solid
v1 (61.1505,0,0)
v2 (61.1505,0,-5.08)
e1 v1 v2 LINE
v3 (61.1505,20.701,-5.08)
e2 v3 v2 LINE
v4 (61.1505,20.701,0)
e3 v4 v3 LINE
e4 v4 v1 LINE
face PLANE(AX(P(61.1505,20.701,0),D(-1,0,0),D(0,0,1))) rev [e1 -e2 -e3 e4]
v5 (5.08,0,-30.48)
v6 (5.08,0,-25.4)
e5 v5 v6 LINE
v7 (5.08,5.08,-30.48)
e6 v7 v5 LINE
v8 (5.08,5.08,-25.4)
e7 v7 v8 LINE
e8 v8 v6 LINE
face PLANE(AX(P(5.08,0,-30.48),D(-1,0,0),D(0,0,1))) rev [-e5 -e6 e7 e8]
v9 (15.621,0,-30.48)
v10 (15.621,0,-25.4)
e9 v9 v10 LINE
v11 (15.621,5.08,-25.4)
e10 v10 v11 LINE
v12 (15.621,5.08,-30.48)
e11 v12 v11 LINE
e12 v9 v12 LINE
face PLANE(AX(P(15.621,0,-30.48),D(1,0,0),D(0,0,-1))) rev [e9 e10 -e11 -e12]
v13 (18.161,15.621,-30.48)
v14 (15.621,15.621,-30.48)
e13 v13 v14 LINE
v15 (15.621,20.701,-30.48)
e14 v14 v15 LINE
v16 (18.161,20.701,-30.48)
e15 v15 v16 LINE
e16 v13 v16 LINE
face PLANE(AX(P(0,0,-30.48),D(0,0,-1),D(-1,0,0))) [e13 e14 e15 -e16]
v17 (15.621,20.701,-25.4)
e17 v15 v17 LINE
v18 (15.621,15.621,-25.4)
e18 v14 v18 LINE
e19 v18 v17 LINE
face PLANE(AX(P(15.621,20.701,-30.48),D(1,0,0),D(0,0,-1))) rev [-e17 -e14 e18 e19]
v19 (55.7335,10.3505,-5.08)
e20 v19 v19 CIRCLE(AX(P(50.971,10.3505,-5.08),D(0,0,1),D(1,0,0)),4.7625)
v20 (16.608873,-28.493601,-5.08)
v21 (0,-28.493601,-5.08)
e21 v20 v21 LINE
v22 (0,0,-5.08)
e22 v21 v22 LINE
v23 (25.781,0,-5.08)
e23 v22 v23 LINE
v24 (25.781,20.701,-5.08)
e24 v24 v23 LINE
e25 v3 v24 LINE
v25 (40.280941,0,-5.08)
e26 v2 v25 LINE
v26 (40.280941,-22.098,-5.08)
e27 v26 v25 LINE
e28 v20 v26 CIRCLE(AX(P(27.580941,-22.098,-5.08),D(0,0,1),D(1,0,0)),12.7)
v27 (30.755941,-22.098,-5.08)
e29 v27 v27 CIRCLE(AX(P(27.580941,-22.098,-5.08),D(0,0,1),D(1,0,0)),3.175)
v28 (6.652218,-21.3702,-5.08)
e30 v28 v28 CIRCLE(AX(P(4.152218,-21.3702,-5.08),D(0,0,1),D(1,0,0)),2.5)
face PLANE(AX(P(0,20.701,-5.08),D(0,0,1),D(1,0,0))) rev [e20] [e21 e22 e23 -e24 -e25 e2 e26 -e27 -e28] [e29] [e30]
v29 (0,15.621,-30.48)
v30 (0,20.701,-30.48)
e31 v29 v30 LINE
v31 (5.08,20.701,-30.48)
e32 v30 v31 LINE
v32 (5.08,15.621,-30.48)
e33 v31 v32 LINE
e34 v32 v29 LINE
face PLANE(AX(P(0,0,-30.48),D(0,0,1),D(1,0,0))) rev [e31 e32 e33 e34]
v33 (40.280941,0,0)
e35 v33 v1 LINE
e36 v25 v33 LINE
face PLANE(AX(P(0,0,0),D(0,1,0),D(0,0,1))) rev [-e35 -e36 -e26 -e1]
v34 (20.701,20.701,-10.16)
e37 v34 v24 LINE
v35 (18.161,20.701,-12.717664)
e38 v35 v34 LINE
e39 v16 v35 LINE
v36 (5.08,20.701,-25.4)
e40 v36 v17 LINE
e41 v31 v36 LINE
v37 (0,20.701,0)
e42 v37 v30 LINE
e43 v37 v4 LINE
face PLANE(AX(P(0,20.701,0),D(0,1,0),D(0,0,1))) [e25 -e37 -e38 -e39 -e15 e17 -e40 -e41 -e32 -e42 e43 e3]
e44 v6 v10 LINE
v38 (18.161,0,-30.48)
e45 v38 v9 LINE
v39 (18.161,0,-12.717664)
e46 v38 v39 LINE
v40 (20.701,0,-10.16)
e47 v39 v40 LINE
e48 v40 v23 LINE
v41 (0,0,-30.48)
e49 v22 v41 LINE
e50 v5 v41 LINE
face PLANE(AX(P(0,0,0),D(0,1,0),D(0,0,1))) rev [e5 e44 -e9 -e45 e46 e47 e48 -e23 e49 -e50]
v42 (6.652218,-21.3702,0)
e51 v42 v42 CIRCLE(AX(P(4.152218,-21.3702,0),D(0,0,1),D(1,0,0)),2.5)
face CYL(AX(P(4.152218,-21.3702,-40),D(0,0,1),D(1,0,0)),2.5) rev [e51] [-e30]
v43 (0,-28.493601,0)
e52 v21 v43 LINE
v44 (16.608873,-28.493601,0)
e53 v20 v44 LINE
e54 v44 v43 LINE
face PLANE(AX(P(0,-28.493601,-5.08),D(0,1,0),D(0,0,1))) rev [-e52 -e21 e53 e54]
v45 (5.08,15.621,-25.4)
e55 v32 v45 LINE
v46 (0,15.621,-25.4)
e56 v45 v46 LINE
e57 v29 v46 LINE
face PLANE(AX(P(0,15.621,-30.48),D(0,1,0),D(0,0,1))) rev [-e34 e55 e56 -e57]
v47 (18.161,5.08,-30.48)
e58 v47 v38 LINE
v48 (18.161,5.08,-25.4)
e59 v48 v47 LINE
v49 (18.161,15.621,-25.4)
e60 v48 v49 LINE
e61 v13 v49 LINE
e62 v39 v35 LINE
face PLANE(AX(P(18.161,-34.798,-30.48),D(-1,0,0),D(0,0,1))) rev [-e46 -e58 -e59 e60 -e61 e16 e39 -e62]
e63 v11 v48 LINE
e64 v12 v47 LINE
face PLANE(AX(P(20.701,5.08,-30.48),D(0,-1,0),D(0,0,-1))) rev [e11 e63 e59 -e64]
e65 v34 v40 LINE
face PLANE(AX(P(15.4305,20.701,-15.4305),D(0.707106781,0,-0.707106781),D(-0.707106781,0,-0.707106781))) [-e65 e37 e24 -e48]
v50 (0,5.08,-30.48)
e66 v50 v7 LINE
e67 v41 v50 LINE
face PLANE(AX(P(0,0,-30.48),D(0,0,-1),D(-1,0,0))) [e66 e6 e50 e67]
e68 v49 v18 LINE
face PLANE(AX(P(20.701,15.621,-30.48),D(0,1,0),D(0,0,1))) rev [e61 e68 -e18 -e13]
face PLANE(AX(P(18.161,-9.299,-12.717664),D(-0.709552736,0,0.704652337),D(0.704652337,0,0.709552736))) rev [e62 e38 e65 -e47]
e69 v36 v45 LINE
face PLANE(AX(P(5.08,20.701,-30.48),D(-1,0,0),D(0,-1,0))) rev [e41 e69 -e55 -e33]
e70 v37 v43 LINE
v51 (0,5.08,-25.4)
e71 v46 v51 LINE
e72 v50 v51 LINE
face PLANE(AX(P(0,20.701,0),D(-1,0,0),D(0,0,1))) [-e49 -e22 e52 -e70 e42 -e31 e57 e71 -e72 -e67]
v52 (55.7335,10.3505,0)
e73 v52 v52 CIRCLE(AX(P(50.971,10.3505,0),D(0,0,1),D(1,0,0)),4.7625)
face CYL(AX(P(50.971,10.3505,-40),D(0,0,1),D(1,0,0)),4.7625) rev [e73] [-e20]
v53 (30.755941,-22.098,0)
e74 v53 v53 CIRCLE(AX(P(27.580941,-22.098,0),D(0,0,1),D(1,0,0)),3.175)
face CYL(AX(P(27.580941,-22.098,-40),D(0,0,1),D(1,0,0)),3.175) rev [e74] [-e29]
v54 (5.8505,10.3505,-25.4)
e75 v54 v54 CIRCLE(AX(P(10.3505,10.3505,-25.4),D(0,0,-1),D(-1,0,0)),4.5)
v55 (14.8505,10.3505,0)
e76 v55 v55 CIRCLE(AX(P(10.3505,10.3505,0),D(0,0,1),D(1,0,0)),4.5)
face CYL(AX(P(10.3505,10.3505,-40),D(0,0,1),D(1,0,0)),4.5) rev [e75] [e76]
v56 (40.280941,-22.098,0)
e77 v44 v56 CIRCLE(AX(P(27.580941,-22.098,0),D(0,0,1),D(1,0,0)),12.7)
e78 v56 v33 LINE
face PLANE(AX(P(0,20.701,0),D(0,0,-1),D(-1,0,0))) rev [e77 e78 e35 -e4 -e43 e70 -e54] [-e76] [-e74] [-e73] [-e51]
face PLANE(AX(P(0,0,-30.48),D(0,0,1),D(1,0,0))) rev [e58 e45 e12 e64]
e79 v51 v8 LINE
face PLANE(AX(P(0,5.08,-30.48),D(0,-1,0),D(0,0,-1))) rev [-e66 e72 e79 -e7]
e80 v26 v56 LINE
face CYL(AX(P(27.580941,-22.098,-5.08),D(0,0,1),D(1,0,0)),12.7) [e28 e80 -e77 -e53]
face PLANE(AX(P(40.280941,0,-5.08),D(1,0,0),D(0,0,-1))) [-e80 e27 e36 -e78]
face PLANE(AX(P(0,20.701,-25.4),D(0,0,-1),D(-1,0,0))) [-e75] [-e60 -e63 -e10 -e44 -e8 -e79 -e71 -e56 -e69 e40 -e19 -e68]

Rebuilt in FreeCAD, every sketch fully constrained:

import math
import FreeCAD as App
import Part
import Sketcher
from FreeCAD import Vector
Q = App.Units.Quantity

doc = App.newDocument("Part")
body = doc.addObject("PartDesign::Body", "Body")

# Sketch on XZ plane
sketch1 = body.newObject("Sketcher::SketchObject", "Sketch")
sketch1.AttachmentSupport = (doc.getObject("XZ_Plane"), [""])
sketch1.MapMode = "FlatFace"
sketch1.addGeometry(Part.LineSegment(Vector(87, 0, 0), Vector(87, -25, 0)), False)
sketch1.addGeometry(Part.LineSegment(Vector(87, -25, 0), Vector(81, -25, 0)), False)
sketch1.addGeometry(Part.LineSegment(Vector(81, -25, 0), Vector(81, -10, 0)), False)
sketch1.addGeometry(Part.LineSegment(Vector(81, -10, 0), Vector(76, -5, 0)), False)
sketch1.addGeometry(Part.LineSegment(Vector(76, -5, 0), Vector(26, -5, 0)), False)
sketch1.addGeometry(Part.LineSegment(Vector(26, -5, 0), Vector(21, -10, 0)), False)
sketch1.addGeometry(Part.LineSegment(Vector(21, -10, 0), Vector(21, -25, 0)), False)
sketch1.addGeometry(Part.LineSegment(Vector(21, -25, 0), Vector(0, -25, 0)), False)
sketch1.addGeometry(Part.LineSegment(Vector(0, -25, 0), Vector(0, 0, 0)), False)
sketch1.addGeometry(Part.LineSegment(Vector(0, 0, 0), Vector(87, 0, 0)), False)
sketch1.addConstraint(Sketcher.Constraint("Coincident", 0, 2, 1, 1))
sketch1.addConstraint(Sketcher.Constraint("Coincident", 1, 2, 2, 1))
sketch1.addConstraint(Sketcher.Constraint("Coincident", 2, 2, 3, 1))
sketch1.addConstraint(Sketcher.Constraint("Coincident", 3, 2, 4, 1))
sketch1.addConstraint(Sketcher.Constraint("Coincident", 4, 2, 5, 1))
sketch1.addConstraint(Sketcher.Constraint("Coincident", 5, 2, 6, 1))
sketch1.addConstraint(Sketcher.Constraint("Coincident", 6, 2, 7, 1))
sketch1.addConstraint(Sketcher.Constraint("Coincident", 7, 2, 8, 1))
sketch1.addConstraint(Sketcher.Constraint("Coincident", 8, 2, 9, 1))
sketch1.addConstraint(Sketcher.Constraint("Coincident", 9, 2, 0, 1))
sketch1.addConstraint(Sketcher.Constraint("Vertical", 0))
sketch1.addConstraint(Sketcher.Constraint("Horizontal", 1))
sketch1.addConstraint(Sketcher.Constraint("Vertical", 2))
sketch1.addConstraint(Sketcher.Constraint("Horizontal", 4))
sketch1.addConstraint(Sketcher.Constraint("Vertical", 6))
sketch1.addConstraint(Sketcher.Constraint("Horizontal", 7))
sketch1.addConstraint(Sketcher.Constraint("Vertical", 8))
sketch1.addConstraint(Sketcher.Constraint("Horizontal", 9))
sketch1.addConstraint(Sketcher.Constraint("Coincident", 8, 2, -1, 1))
sketch1.addConstraint(Sketcher.Constraint("Perpendicular", 3, 5))
sketch1.addConstraint(Sketcher.Constraint("Horizontal", 2, 2, 5, 2))
sketch1.addConstraint(Sketcher.Constraint("Horizontal", 1, 2, 6, 2))
sketch1.addConstraint(Sketcher.Constraint("Equal", 3, 5))
sketch1.addConstraint(Sketcher.Constraint("DistanceY", 0, 2, 0, 1, Q("1 in")))
sketch1.addConstraint(Sketcher.Constraint("DistanceX", 1, 2, 1, 1, Q("0.2 in")))
sketch1.addConstraint(Sketcher.Constraint("DistanceY", 2, 1, 2, 2, Q("0.6 in")))
sketch1.addConstraint(Sketcher.Constraint("DistanceY", 3, 2, -1, 1, Q("0.2 in")))
sketch1.addConstraint(Sketcher.Constraint("DistanceX", 7, 2, 7, 1, Q("0.815 in")))
sketch1.addConstraint(Sketcher.Constraint("DistanceX", 4, 2, 4, 1, Q("1.9925 in")))
pad1 = body.newObject("PartDesign::Pad", "Pad")
pad1.Profile = sketch1
pad1.Length = Q("0.815 in")
pad1.Reversed = True

# Sketch on XY plane
sketch2 = body.newObject("Sketcher::SketchObject", "Sketch001")
sketch2.AttachmentSupport = (doc.getObject("XY_Plane"), [""])
sketch2.MapMode = "FlatFace"
sketch2.AttachmentOffset = App.Placement(Vector(0, 0, -1 * 25.4), App.Rotation())
sketch2.addGeometry(Part.Circle(Vector(10.4, 10.4, 0), Vector(0, 0, 1), 1), False)
sketch2.addConstraint(Sketcher.Constraint("Diameter", 0, 2.0))
sketch2.addConstraint(Sketcher.Constraint("DistanceX", -1, 1, 0, 3, Q("0.4075 in")))
sketch2.addConstraint(Sketcher.Constraint("DistanceY", -1, 1, 0, 3, Q("0.4075 in")))
pocket1 = body.newObject("PartDesign::Pocket", "Pocket")
pocket1.Profile = sketch2
pocket1.Type = "ThroughAll"
pocket1.Reversed = True

# Sketch on XY plane
sketch3 = body.newObject("Sketcher::SketchObject", "Sketch002")
sketch3.AttachmentSupport = (doc.getObject("XY_Plane"), [""])
sketch3.MapMode = "FlatFace"
sketch3.addGeometry(Part.Circle(Vector(51, 10.4, 0), Vector(0, 0, 1), 1), False)
sketch3.addConstraint(Sketcher.Constraint("Diameter", 0, 2.0))
sketch3.addConstraint(Sketcher.Constraint("DistanceY", -1, 1, 0, 3, Q("0.4075 in")))
sketch3.addConstraint(Sketcher.Constraint("DistanceX", -1, 1, 0, 3, 50.971))
pocket2 = body.newObject("PartDesign::Pocket", "Pocket001")
pocket2.Profile = sketch3
pocket2.Length = Q("0.5 in")

# Sketch on XY plane
sketch4 = body.newObject("Sketcher::SketchObject", "Sketch003")
sketch4.AttachmentSupport = (doc.getObject("XY_Plane"), [""])
sketch4.MapMode = "FlatFace"
sketch4.addGeometry(Part.LineSegment(Vector(40.3, 0, 0), Vector(0, 0, 0)), False)
sketch4.addGeometry(Part.LineSegment(Vector(0, 0, 0), Vector(16.6, -28.5, 0)), False)
sketch4.addGeometry(Part.ArcOfCircle(Part.Circle(Vector(27.6, -22.1, 0), Vector(0, 0, 1), 12.7), math.radians(-150), math.radians(0)), False)
sketch4.addGeometry(Part.LineSegment(Vector(40.3, -22.1, 0), Vector(40.3, 0, 0)), False)
sketch4.addGeometry(Part.Circle(Vector(20.1, -22.1, 0), Vector(0, 0, 1), 1), False)
sketch4.addGeometry(Part.ArcOfCircle(Part.Circle(Vector(27.6, -22.1, 0), Vector(0, 0, 1), 1), math.radians(180), math.radians(360)), False)
sketch4.addGeometry(Part.ArcOfCircle(Part.Circle(Vector(27.6, -22.1, 0), Vector(0, 0, 1), 1), math.radians(90), math.radians(180)), False)
sketch4.addGeometry(Part.ArcOfCircle(Part.Circle(Vector(27.6, -22.1, 0), Vector(0, 0, 1), 1), math.radians(0), math.radians(90)), False)
sketch4.addGeometry(Part.Circle(Vector(35, -22.1, 0), Vector(0, 0, 1), 1), False)
sketch4.addConstraint(Sketcher.Constraint("Coincident", 0, 2, 1, 1))
sketch4.addConstraint(Sketcher.Constraint("Tangent", 1, 2, 2, 1))
sketch4.addConstraint(Sketcher.Constraint("Tangent", 2, 2, 3, 1))
sketch4.addConstraint(Sketcher.Constraint("Coincident", 3, 2, 0, 1))
sketch4.addConstraint(Sketcher.Constraint("Tangent", 5, 1, 6, 2))
sketch4.addConstraint(Sketcher.Constraint("Tangent", 6, 1, 7, 2))
sketch4.addConstraint(Sketcher.Constraint("Tangent", 7, 1, 5, 2))
sketch4.addConstraint(Sketcher.Constraint("Horizontal", 0))
sketch4.addConstraint(Sketcher.Constraint("Vertical", 3))
sketch4.addConstraint(Sketcher.Constraint("Coincident", 0, 2, -1, 1))
sketch4.addConstraint(Sketcher.Constraint("Coincident", 5, 3, 2, 3))
sketch4.addConstraint(Sketcher.Constraint("Equal", 4, 5))
sketch4.addConstraint(Sketcher.Constraint("Equal", 7, 8))
sketch4.addConstraint(Sketcher.Constraint("Horizontal", 2, 3, 4, 3))
sketch4.addConstraint(Sketcher.Constraint("Horizontal", 7, 3, 8, 3))
sketch4.addConstraint(Sketcher.Constraint("Horizontal", 2, 2, 5, 1))
sketch4.addConstraint(Sketcher.Constraint("Horizontal", 5, 1, 7, 1))
sketch4.addConstraint(Sketcher.Constraint("Vertical", 7, 3, 6, 1))
sketch4.addConstraint(Sketcher.Constraint("Radius", 2, Q("0.5 in")))
sketch4.addConstraint(Sketcher.Constraint("DistanceY", 3, 1, 3, 2, Q("0.87 in")))
sketch4.addConstraint(Sketcher.Constraint("Diameter", 4, 2.0))
sketch4.addConstraint(Sketcher.Constraint("DistanceX", 4, 3, 2, 3, Q("0.293 in")))
sketch4.addConstraint(Sketcher.Constraint("DistanceX", 6, 3, 8, 3, Q("0.293 in")))
sketch4.addConstraint(Sketcher.Constraint("DistanceX", 0, 2, 0, 1, 40.280941))
pad2 = body.newObject("PartDesign::Pad", "Pad001")
pad2.Profile = sketch4
pad2.Length = Q("0.2 in")
pad2.Reversed = True

# Sketch on XY plane
sketch5 = body.newObject("Sketcher::SketchObject", "Sketch004")
sketch5.AttachmentSupport = (doc.getObject("XY_Plane"), [""])
sketch5.MapMode = "FlatFace"
sketch5.AttachmentOffset = App.Placement(Vector(0, 0, -1 * 25.4), App.Rotation())
sketch5.addGeometry(Part.LineSegment(Vector(5, 5, 0), Vector(5, 0, 0)), False)
sketch5.addGeometry(Part.LineSegment(Vector(5, 0, 0), Vector(0, 0, 0)), False)
sketch5.addGeometry(Part.LineSegment(Vector(0, 0, 0), Vector(0, 5, 0)), False)
sketch5.addGeometry(Part.LineSegment(Vector(0, 5, 0), Vector(5, 5, 0)), False)
sketch5.addGeometry(Part.LineSegment(Vector(5, 21, 0), Vector(5, 16, 0)), False)
sketch5.addGeometry(Part.LineSegment(Vector(5, 16, 0), Vector(0, 16, 0)), False)
sketch5.addGeometry(Part.LineSegment(Vector(0, 16, 0), Vector(0, 21, 0)), False)
sketch5.addGeometry(Part.LineSegment(Vector(0, 21, 0), Vector(5, 21, 0)), False)
sketch5.addGeometry(Part.LineSegment(Vector(21, 21, 0), Vector(21, 16, 0)), False)
sketch5.addGeometry(Part.LineSegment(Vector(21, 16, 0), Vector(16, 16, 0)), False)
sketch5.addGeometry(Part.LineSegment(Vector(16, 16, 0), Vector(16, 21, 0)), False)
sketch5.addGeometry(Part.LineSegment(Vector(16, 21, 0), Vector(21, 21, 0)), False)
sketch5.addGeometry(Part.LineSegment(Vector(21, 5, 0), Vector(21, 0, 0)), False)
sketch5.addGeometry(Part.LineSegment(Vector(21, 0, 0), Vector(16, 0, 0)), False)
sketch5.addGeometry(Part.LineSegment(Vector(16, 0, 0), Vector(16, 5, 0)), False)
sketch5.addGeometry(Part.LineSegment(Vector(16, 5, 0), Vector(21, 5, 0)), False)
sketch5.addConstraint(Sketcher.Constraint("Coincident", 0, 2, 1, 1))
sketch5.addConstraint(Sketcher.Constraint("Coincident", 1, 2, 2, 1))
sketch5.addConstraint(Sketcher.Constraint("Coincident", 2, 2, 3, 1))
sketch5.addConstraint(Sketcher.Constraint("Coincident", 3, 2, 0, 1))
sketch5.addConstraint(Sketcher.Constraint("Coincident", 4, 2, 5, 1))
sketch5.addConstraint(Sketcher.Constraint("Coincident", 5, 2, 6, 1))
sketch5.addConstraint(Sketcher.Constraint("Coincident", 6, 2, 7, 1))
sketch5.addConstraint(Sketcher.Constraint("Coincident", 7, 2, 4, 1))
sketch5.addConstraint(Sketcher.Constraint("Coincident", 8, 2, 9, 1))
sketch5.addConstraint(Sketcher.Constraint("Coincident", 9, 2, 10, 1))
sketch5.addConstraint(Sketcher.Constraint("Coincident", 10, 2, 11, 1))
sketch5.addConstraint(Sketcher.Constraint("Coincident", 11, 2, 8, 1))
sketch5.addConstraint(Sketcher.Constraint("Coincident", 12, 2, 13, 1))
sketch5.addConstraint(Sketcher.Constraint("Coincident", 13, 2, 14, 1))
sketch5.addConstraint(Sketcher.Constraint("Coincident", 14, 2, 15, 1))
sketch5.addConstraint(Sketcher.Constraint("Coincident", 15, 2, 12, 1))
sketch5.addConstraint(Sketcher.Constraint("Vertical", 0))
sketch5.addConstraint(Sketcher.Constraint("Horizontal", 1))
sketch5.addConstraint(Sketcher.Constraint("Vertical", 2))
sketch5.addConstraint(Sketcher.Constraint("Horizontal", 3))
sketch5.addConstraint(Sketcher.Constraint("Vertical", 4))
sketch5.addConstraint(Sketcher.Constraint("Horizontal", 5))
sketch5.addConstraint(Sketcher.Constraint("Vertical", 6))
sketch5.addConstraint(Sketcher.Constraint("Horizontal", 7))
sketch5.addConstraint(Sketcher.Constraint("Vertical", 8))
sketch5.addConstraint(Sketcher.Constraint("Horizontal", 9))
sketch5.addConstraint(Sketcher.Constraint("Vertical", 10))
sketch5.addConstraint(Sketcher.Constraint("Horizontal", 11))
sketch5.addConstraint(Sketcher.Constraint("Vertical", 12))
sketch5.addConstraint(Sketcher.Constraint("Horizontal", 13))
sketch5.addConstraint(Sketcher.Constraint("Vertical", 14))
sketch5.addConstraint(Sketcher.Constraint("Horizontal", 15))
sketch5.addConstraint(Sketcher.Constraint("Coincident", 1, 2, -1, 1))
sketch5.addConstraint(Sketcher.Constraint("PointOnObject", 5, 2, -2))
sketch5.addConstraint(Sketcher.Constraint("PointOnObject", 12, 2, -1))
sketch5.addConstraint(Sketcher.Constraint("Horizontal", 5, 2, 8, 2))
sketch5.addConstraint(Sketcher.Constraint("Horizontal", 7, 2, 10, 2))
sketch5.addConstraint(Sketcher.Constraint("Horizontal", 3, 2, 14, 2))
sketch5.addConstraint(Sketcher.Constraint("Vertical", 3, 2, 4, 2))
sketch5.addConstraint(Sketcher.Constraint("Vertical", 11, 2, 12, 2))
sketch5.addConstraint(Sketcher.Constraint("Vertical", 10, 2, 13, 2))
sketch5.addConstraint(Sketcher.Constraint("Equal", 7, 9))
sketch5.addConstraint(Sketcher.Constraint("Equal", 15, 0))
sketch5.addConstraint(Sketcher.Constraint("Equal", 2, 4))
sketch5.addConstraint(Sketcher.Constraint("DistanceX", 1, 2, 1, 1, Q("0.2 in")))
sketch5.addConstraint(Sketcher.Constraint("DistanceY", -1, 1, 4, 2, Q("0.615 in")))
sketch5.addConstraint(Sketcher.Constraint("DistanceX", -1, 1, 8, 2, Q("0.815 in")))
pad3 = body.newObject("PartDesign::Pad", "Pad002")
pad3.Profile = sketch5
pad3.Length = Q("0.2 in")
pad3.Reversed = True

# Sketch on XY plane
sketch6 = body.newObject("Sketcher::SketchObject", "Sketch005")
sketch6.AttachmentSupport = (doc.getObject("XY_Plane"), [""])
sketch6.MapMode = "FlatFace"
sketch6.AttachmentOffset = App.Placement(Vector(0, 0, -1 * 25.4), App.Rotation())
sketch6.addGeometry(Part.LineSegment(Vector(87, 21, 0), Vector(87, 16, 0)), False)
sketch6.addGeometry(Part.LineSegment(Vector(87, 16, 0), Vector(81, 16, 0)), False)
sketch6.addGeometry(Part.LineSegment(Vector(81, 16, 0), Vector(81, 21, 0)), False)
sketch6.addGeometry(Part.LineSegment(Vector(81, 21, 0), Vector(87, 21, 0)), False)
sketch6.addGeometry(Part.LineSegment(Vector(87, 5, 0), Vector(87, 0, 0)), False)
sketch6.addGeometry(Part.LineSegment(Vector(87, 0, 0), Vector(81, 0, 0)), False)
sketch6.addGeometry(Part.LineSegment(Vector(81, 0, 0), Vector(81, 5, 0)), False)
sketch6.addGeometry(Part.LineSegment(Vector(81, 5, 0), Vector(87, 5, 0)), False)
sketch6.addConstraint(Sketcher.Constraint("Coincident", 0, 2, 1, 1))
sketch6.addConstraint(Sketcher.Constraint("Coincident", 1, 2, 2, 1))
sketch6.addConstraint(Sketcher.Constraint("Coincident", 2, 2, 3, 1))
sketch6.addConstraint(Sketcher.Constraint("Coincident", 3, 2, 0, 1))
sketch6.addConstraint(Sketcher.Constraint("Coincident", 4, 2, 5, 1))
sketch6.addConstraint(Sketcher.Constraint("Coincident", 5, 2, 6, 1))
sketch6.addConstraint(Sketcher.Constraint("Coincident", 6, 2, 7, 1))
sketch6.addConstraint(Sketcher.Constraint("Coincident", 7, 2, 4, 1))
sketch6.addConstraint(Sketcher.Constraint("Vertical", 0))
sketch6.addConstraint(Sketcher.Constraint("Horizontal", 1))
sketch6.addConstraint(Sketcher.Constraint("Vertical", 2))
sketch6.addConstraint(Sketcher.Constraint("Horizontal", 3))
sketch6.addConstraint(Sketcher.Constraint("Vertical", 4))
sketch6.addConstraint(Sketcher.Constraint("Horizontal", 5))
sketch6.addConstraint(Sketcher.Constraint("Vertical", 6))
sketch6.addConstraint(Sketcher.Constraint("Horizontal", 7))
sketch6.addConstraint(Sketcher.Constraint("PointOnObject", 4, 2, -1))
sketch6.addConstraint(Sketcher.Constraint("Vertical", 3, 2, 4, 2))
sketch6.addConstraint(Sketcher.Constraint("Vertical", 2, 2, 5, 2))
sketch6.addConstraint(Sketcher.Constraint("Equal", 7, 0))
sketch6.addConstraint(Sketcher.Constraint("Equal", 2, 4))
sketch6.addConstraint(Sketcher.Constraint("DistanceX", 1, 2, 1, 1, Q("0.2 in")))
sketch6.addConstraint(Sketcher.Constraint("DistanceY", -1, 1, 0, 2, Q("0.615 in")))
sketch6.addConstraint(Sketcher.Constraint("DistanceX", -1, 1, 0, 2, Q("3.4075 in")))
pad4 = body.newObject("PartDesign::Pad", "Pad003")
pad4.Profile = sketch6
pad4.Length = Q("0.2 in")
pad4.Reversed = True

# Sketch on XZ plane
sketch7 = body.newObject("Sketcher::SketchObject", "Sketch006")
sketch7.AttachmentSupport = (doc.getObject("XZ_Plane"), [""])
sketch7.MapMode = "FlatFace"
sketch7.AttachmentOffset = App.Placement(Vector(0, 0, -0.815 * 25.4), App.Rotation())
sketch7.addGeometry(Part.LineSegment(Vector(81.5, -30.5, 0), Vector(81.5, -15.5, 0)), False)
sketch7.addGeometry(Part.LineSegment(Vector(81.5, -15.5, 0), Vector(84, -15.5, 0)), False)
sketch7.addGeometry(Part.LineSegment(Vector(84, -15.5, 0), Vector(84, -30.5, 0)), False)
sketch7.addGeometry(Part.LineSegment(Vector(84, -30.5, 0), Vector(81.5, -30.5, 0)), False)
sketch7.addGeometry(Part.LineSegment(Vector(18.2, -30.5, 0), Vector(18.2, -15.5, 0)), False)
sketch7.addGeometry(Part.LineSegment(Vector(18.2, -15.5, 0), Vector(20.7, -15.5, 0)), False)
sketch7.addGeometry(Part.LineSegment(Vector(20.7, -15.5, 0), Vector(20.7, -30.5, 0)), False)
sketch7.addGeometry(Part.LineSegment(Vector(20.7, -30.5, 0), Vector(18.2, -30.5, 0)), False)
sketch7.addConstraint(Sketcher.Constraint("Coincident", 0, 2, 1, 1))
sketch7.addConstraint(Sketcher.Constraint("Coincident", 1, 2, 2, 1))
sketch7.addConstraint(Sketcher.Constraint("Coincident", 2, 2, 3, 1))
sketch7.addConstraint(Sketcher.Constraint("Coincident", 3, 2, 0, 1))
sketch7.addConstraint(Sketcher.Constraint("Coincident", 4, 2, 5, 1))
sketch7.addConstraint(Sketcher.Constraint("Coincident", 5, 2, 6, 1))
sketch7.addConstraint(Sketcher.Constraint("Coincident", 6, 2, 7, 1))
sketch7.addConstraint(Sketcher.Constraint("Coincident", 7, 2, 4, 1))
sketch7.addConstraint(Sketcher.Constraint("Vertical", 0))
sketch7.addConstraint(Sketcher.Constraint("Horizontal", 1))
sketch7.addConstraint(Sketcher.Constraint("Vertical", 2))
sketch7.addConstraint(Sketcher.Constraint("Horizontal", 3))
sketch7.addConstraint(Sketcher.Constraint("Vertical", 4))
sketch7.addConstraint(Sketcher.Constraint("Horizontal", 5))
sketch7.addConstraint(Sketcher.Constraint("Vertical", 6))
sketch7.addConstraint(Sketcher.Constraint("Horizontal", 7))
sketch7.addConstraint(Sketcher.Constraint("Horizontal", 1, 2, 4, 2))
sketch7.addConstraint(Sketcher.Constraint("Horizontal", 3, 2, 6, 2))
sketch7.addConstraint(Sketcher.Constraint("Equal", 3, 5))
sketch7.addConstraint(Sketcher.Constraint("DistanceX", 1, 1, 1, 2, Q("0.1 in")))
sketch7.addConstraint(Sketcher.Constraint("DistanceY", 2, 2, -1, 1, Q("1.2 in")))
sketch7.addConstraint(Sketcher.Constraint("DistanceX", -1, 1, 4, 2, Q("0.715 in")))
sketch7.addConstraint(Sketcher.Constraint("DistanceY", 0, 1, 0, 2, 15.0))
sketch7.addConstraint(Sketcher.Constraint("DistanceX", -1, 1, 0, 2, Q("3.2075 in")))
pocket3 = body.newObject("PartDesign::Pocket", "Pocket002")
pocket3.Profile = sketch7
pocket3.Type = "ThroughAll"
pocket3.Reversed = True

# Sketch on XZ plane
sketch8 = body.newObject("Sketcher::SketchObject", "Sketch007")
sketch8.AttachmentSupport = (doc.getObject("XZ_Plane"), [""])
sketch8.MapMode = "FlatFace"
sketch8.addGeometry(Part.LineSegment(Vector(87, -33, 0), Vector(87, 0, 0)), False)
sketch8.addGeometry(Part.LineSegment(Vector(87, 0, 0), Vector(61, 0, 0)), False)
sketch8.addGeometry(Part.LineSegment(Vector(61, 0, 0), Vector(61, -33, 0)), False)
sketch8.addGeometry(Part.LineSegment(Vector(61, -33, 0), Vector(87, -33, 0)), False)
sketch8.addConstraint(Sketcher.Constraint("Coincident", 0, 2, 1, 1))
sketch8.addConstraint(Sketcher.Constraint("Coincident", 1, 2, 2, 1))
sketch8.addConstraint(Sketcher.Constraint("Coincident", 2, 2, 3, 1))
sketch8.addConstraint(Sketcher.Constraint("Coincident", 3, 2, 0, 1))
sketch8.addConstraint(Sketcher.Constraint("Vertical", 0))
sketch8.addConstraint(Sketcher.Constraint("Horizontal", 1))
sketch8.addConstraint(Sketcher.Constraint("Vertical", 2))
sketch8.addConstraint(Sketcher.Constraint("Horizontal", 3))
sketch8.addConstraint(Sketcher.Constraint("PointOnObject", 0, 2, -1))
sketch8.addConstraint(Sketcher.Constraint("DistanceX", 1, 2, 1, 1, Q("1 in")))
sketch8.addConstraint(Sketcher.Constraint("DistanceX", -1, 1, 0, 2, Q("3.4075 in")))
sketch8.addConstraint(Sketcher.Constraint("DistanceY", 0, 1, 0, 2, 32.877516))
pocket4 = body.newObject("PartDesign::Pocket", "Pocket003")
pocket4.Profile = sketch8
pocket4.Type = "ThroughAll"

# Sketch on XY plane
sketch9 = body.newObject("Sketcher::SketchObject", "Sketch008")
sketch9.AttachmentSupport = (doc.getObject("XY_Plane"), [""])
sketch9.MapMode = "FlatFace"
sketch9.addGeometry(Part.LineSegment(Vector(16.6, -28.5, 0), Vector(0, 0, 0)), False)
sketch9.addGeometry(Part.LineSegment(Vector(0, 0, 0), Vector(0, -28.5, 0)), False)
sketch9.addGeometry(Part.LineSegment(Vector(0, -28.5, 0), Vector(16.6, -28.5, 0)), False)
sketch9.addGeometry(Part.ArcOfCircle(Part.Circle(Vector(4.2, -21.4, 0), Vector(0, 0, 1), 1), math.radians(0), math.radians(120)), False)
sketch9.addGeometry(Part.ArcOfCircle(Part.Circle(Vector(4.2, -21.4, 0), Vector(0, 0, 1), 1), math.radians(-60), math.radians(0)), False)
sketch9.addGeometry(Part.ArcOfCircle(Part.Circle(Vector(4.2, -21.4, 0), Vector(0, 0, 1), 1), math.radians(120), math.radians(300)), False)
sketch9.addConstraint(Sketcher.Constraint("Coincident", 0, 2, 1, 1))
sketch9.addConstraint(Sketcher.Constraint("Coincident", 1, 2, 2, 1))
sketch9.addConstraint(Sketcher.Constraint("Coincident", 2, 2, 0, 1))
sketch9.addConstraint(Sketcher.Constraint("Tangent", 3, 1, 4, 2))
sketch9.addConstraint(Sketcher.Constraint("Tangent", 4, 1, 5, 2))
sketch9.addConstraint(Sketcher.Constraint("Tangent", 5, 1, 3, 2))
sketch9.addConstraint(Sketcher.Constraint("Vertical", 1))
sketch9.addConstraint(Sketcher.Constraint("Horizontal", 2))
sketch9.addConstraint(Sketcher.Constraint("Coincident", 0, 2, -1, 1))
sketch9.addConstraint(Sketcher.Constraint("Horizontal", 5, 3, 3, 1))
sketch9.addConstraint(Sketcher.Constraint("Radius", 3, 1.0))
sketch9.addConstraint(Sketcher.Constraint("DistanceY", 1, 2, 1, 1, 28.493601))
sketch9.addConstraint(Sketcher.Constraint("DistanceY", 3, 3, -1, 1, 21.3702))
sketch9.addConstraint(Sketcher.Constraint("DistanceX", 2, 1, 2, 2, 16.608873))
sketch9.addConstraint(Sketcher.Constraint("DistanceX", -1, 1, 3, 3, 4.152218))
sketch9.addConstraint(Sketcher.Constraint("DistanceX", -1, 1, 4, 1, 4.655809))
sketch9.addConstraint(Sketcher.Constraint("DistanceY", 5, 1, -1, 1, 20.506258))
pad5 = body.newObject("PartDesign::Pad", "Pad004")
pad5.Profile = sketch9
pad5.Length = Q("0.2 in")
pad5.Reversed = True

# Sketch on XY plane
sketch10 = body.newObject("Sketcher::SketchObject", "Sketch009")
sketch10.AttachmentSupport = (doc.getObject("XY_Plane"), [""])
sketch10.MapMode = "FlatFace"
sketch10.addGeometry(Part.Circle(Vector(4.2, -21.4, 0), Vector(0, 0, 1), 1), False)
sketch10.addGeometry(Part.Circle(Vector(20.1, -22.1, 0), Vector(0, 0, 1), 1), False)
sketch10.addGeometry(Part.Circle(Vector(27.6, -22.1, 0), Vector(0, 0, 1), 1), False)
sketch10.addGeometry(Part.Circle(Vector(35, -22.1, 0), Vector(0, 0, 1), 1), False)
sketch10.addGeometry(Part.Circle(Vector(51, 10.4, 0), Vector(0, 0, 1), 1), False)
sketch10.addConstraint(Sketcher.Constraint("Equal", 0, 1))
sketch10.addConstraint(Sketcher.Constraint("Equal", 1, 2))
sketch10.addConstraint(Sketcher.Constraint("Equal", 2, 3))
sketch10.addConstraint(Sketcher.Constraint("Equal", 3, 4))
sketch10.addConstraint(Sketcher.Constraint("Horizontal", 1, 3, 2, 3))
sketch10.addConstraint(Sketcher.Constraint("Horizontal", 2, 3, 3, 3))
sketch10.addConstraint(Sketcher.Constraint("Diameter", 0, 2.0))
sketch10.addConstraint(Sketcher.Constraint("DistanceY", 1, 3, -1, 1, Q("0.87 in")))
sketch10.addConstraint(Sketcher.Constraint("DistanceX", 1, 3, 2, 3, Q("0.293 in")))
sketch10.addConstraint(Sketcher.Constraint("DistanceX", 2, 3, 3, 3, Q("0.293 in")))
sketch10.addConstraint(Sketcher.Constraint("DistanceY", -1, 1, 4, 3, Q("0.4075 in")))
sketch10.addConstraint(Sketcher.Constraint("DistanceY", 0, 3, -1, 1, 21.3702))
sketch10.addConstraint(Sketcher.Constraint("DistanceX", -1, 1, 4, 3, 50.971))
sketch10.addConstraint(Sketcher.Constraint("DistanceX", -1, 1, 0, 3, 4.152218))
sketch10.addConstraint(Sketcher.Constraint("DistanceX", -1, 1, 1, 3, 20.138741))
pad6 = body.newObject("PartDesign::Pad", "Pad005")
pad6.Profile = sketch10
pad6.Length = Q("0.2 in")
pad6.Reversed = True

# Sketch on XY plane
sketch11 = body.newObject("Sketcher::SketchObject", "Sketch010")
sketch11.AttachmentSupport = (doc.getObject("XY_Plane"), [""])
sketch11.MapMode = "FlatFace"
sketch11.AttachmentOffset = App.Placement(Vector(0, 0, -1 * 25.4), App.Rotation())
sketch11.addGeometry(Part.Circle(Vector(10.4, 10.4, 0), Vector(0, 0, 1), 1), False)
sketch11.addConstraint(Sketcher.Constraint("Diameter", 0, 2.0))
sketch11.addConstraint(Sketcher.Constraint("DistanceX", -1, 1, 0, 3, Q("0.4075 in")))
sketch11.addConstraint(Sketcher.Constraint("DistanceY", -1, 1, 0, 3, Q("0.4075 in")))
pad7 = body.newObject("PartDesign::Pad", "Pad006")
pad7.Profile = sketch11
pad7.Length = 24.4

# Sketch on XZ plane
sketch12 = body.newObject("Sketcher::SketchObject", "Sketch011")
sketch12.AttachmentSupport = (doc.getObject("XZ_Plane"), [""])
sketch12.MapMode = "FlatFace"
sketch12.AttachmentOffset = App.Placement(Vector(0, 0, -0.815 * 25.4), App.Rotation())
sketch12.addGeometry(Part.LineSegment(Vector(18.2, -15.5, 0), Vector(18.2, -12.7, 0)), False)
sketch12.addGeometry(Part.LineSegment(Vector(18.2, -12.7, 0), Vector(20.7, -10.2, 0)), False)
sketch12.addGeometry(Part.LineSegment(Vector(20.7, -10.2, 0), Vector(20.7, -15.5, 0)), False)
sketch12.addGeometry(Part.LineSegment(Vector(20.7, -15.5, 0), Vector(18.2, -15.5, 0)), False)
sketch12.addConstraint(Sketcher.Constraint("Coincident", 0, 2, 1, 1))
sketch12.addConstraint(Sketcher.Constraint("Coincident", 1, 2, 2, 1))
sketch12.addConstraint(Sketcher.Constraint("Coincident", 2, 2, 3, 1))
sketch12.addConstraint(Sketcher.Constraint("Coincident", 3, 2, 0, 1))
sketch12.addConstraint(Sketcher.Constraint("Vertical", 0))
sketch12.addConstraint(Sketcher.Constraint("Vertical", 2))
sketch12.addConstraint(Sketcher.Constraint("Horizontal", 3))
sketch12.addConstraint(Sketcher.Constraint("DistanceX", 3, 2, 3, 1, Q("0.1 in")))
sketch12.addConstraint(Sketcher.Constraint("DistanceY", 1, 2, -1, 1, Q("0.4 in")))
sketch12.addConstraint(Sketcher.Constraint("DistanceX", -1, 1, 0, 2, Q("0.715 in")))
sketch12.addConstraint(Sketcher.Constraint("DistanceY", 2, 2, 2, 1, 5.32))
sketch12.addConstraint(Sketcher.Constraint("DistanceY", 0, 1, 0, 2, 2.762336))
pocket5 = body.newObject("PartDesign::Pocket", "Pocket004")
pocket5.Profile = sketch12
pocket5.Length = 30
pocket5.Reversed = True

# Sketch on XY plane
sketch13 = body.newObject("Sketcher::SketchObject", "Sketch012")
sketch13.AttachmentSupport = (doc.getObject("XY_Plane"), [""])
sketch13.MapMode = "FlatFace"
sketch13.addGeometry(Part.Circle(Vector(10.4, 10.4, 0), Vector(0, 0, 1), 4.5), False)
sketch13.addConstraint(Sketcher.Constraint("Diameter", 0, 9.0))
sketch13.addConstraint(Sketcher.Constraint("DistanceX", -1, 1, 0, 3, Q("0.4075 in")))
sketch13.addConstraint(Sketcher.Constraint("DistanceY", -1, 1, 0, 3, Q("0.4075 in")))
pocket6 = body.newObject("PartDesign::Pocket", "Pocket005")
pocket6.Profile = sketch13
pocket6.Length = 40

# Sketch on XY plane
sketch14 = body.newObject("Sketcher::SketchObject", "Sketch013")
sketch14.AttachmentSupport = (doc.getObject("XY_Plane"), [""])
sketch14.MapMode = "FlatFace"
sketch14.addGeometry(Part.Circle(Vector(27.6, -22.1, 0), Vector(0, 0, 1), 3.2), False)
sketch14.addGeometry(Part.Circle(Vector(51, 10.4, 0), Vector(0, 0, 1), 4.8), False)
sketch14.addGeometry(Part.Circle(Vector(4.2, -21.4, 0), Vector(0, 0, 1), 2.5), False)
sketch14.addConstraint(Sketcher.Constraint("Diameter", 0, Q("0.25 in")))
sketch14.addConstraint(Sketcher.Constraint("Diameter", 1, Q("0.375 in")))
sketch14.addConstraint(Sketcher.Constraint("Diameter", 2, 5.0))
sketch14.addConstraint(Sketcher.Constraint("DistanceY", 0, 3, -1, 1, Q("0.87 in")))
sketch14.addConstraint(Sketcher.Constraint("DistanceY", -1, 1, 1, 3, Q("0.4075 in")))
sketch14.addConstraint(Sketcher.Constraint("DistanceX", -1, 1, 1, 3, 50.971))
sketch14.addConstraint(Sketcher.Constraint("DistanceY", 2, 3, -1, 1, 21.3702))
sketch14.addConstraint(Sketcher.Constraint("DistanceX", -1, 1, 0, 3, 27.580941))
sketch14.addConstraint(Sketcher.Constraint("DistanceX", -1, 1, 2, 3, 4.152218))
pocket7 = body.newObject("PartDesign::Pocket", "Pocket006")
pocket7.Profile = sketch14
pocket7.Length = 40

doc.recompute()
